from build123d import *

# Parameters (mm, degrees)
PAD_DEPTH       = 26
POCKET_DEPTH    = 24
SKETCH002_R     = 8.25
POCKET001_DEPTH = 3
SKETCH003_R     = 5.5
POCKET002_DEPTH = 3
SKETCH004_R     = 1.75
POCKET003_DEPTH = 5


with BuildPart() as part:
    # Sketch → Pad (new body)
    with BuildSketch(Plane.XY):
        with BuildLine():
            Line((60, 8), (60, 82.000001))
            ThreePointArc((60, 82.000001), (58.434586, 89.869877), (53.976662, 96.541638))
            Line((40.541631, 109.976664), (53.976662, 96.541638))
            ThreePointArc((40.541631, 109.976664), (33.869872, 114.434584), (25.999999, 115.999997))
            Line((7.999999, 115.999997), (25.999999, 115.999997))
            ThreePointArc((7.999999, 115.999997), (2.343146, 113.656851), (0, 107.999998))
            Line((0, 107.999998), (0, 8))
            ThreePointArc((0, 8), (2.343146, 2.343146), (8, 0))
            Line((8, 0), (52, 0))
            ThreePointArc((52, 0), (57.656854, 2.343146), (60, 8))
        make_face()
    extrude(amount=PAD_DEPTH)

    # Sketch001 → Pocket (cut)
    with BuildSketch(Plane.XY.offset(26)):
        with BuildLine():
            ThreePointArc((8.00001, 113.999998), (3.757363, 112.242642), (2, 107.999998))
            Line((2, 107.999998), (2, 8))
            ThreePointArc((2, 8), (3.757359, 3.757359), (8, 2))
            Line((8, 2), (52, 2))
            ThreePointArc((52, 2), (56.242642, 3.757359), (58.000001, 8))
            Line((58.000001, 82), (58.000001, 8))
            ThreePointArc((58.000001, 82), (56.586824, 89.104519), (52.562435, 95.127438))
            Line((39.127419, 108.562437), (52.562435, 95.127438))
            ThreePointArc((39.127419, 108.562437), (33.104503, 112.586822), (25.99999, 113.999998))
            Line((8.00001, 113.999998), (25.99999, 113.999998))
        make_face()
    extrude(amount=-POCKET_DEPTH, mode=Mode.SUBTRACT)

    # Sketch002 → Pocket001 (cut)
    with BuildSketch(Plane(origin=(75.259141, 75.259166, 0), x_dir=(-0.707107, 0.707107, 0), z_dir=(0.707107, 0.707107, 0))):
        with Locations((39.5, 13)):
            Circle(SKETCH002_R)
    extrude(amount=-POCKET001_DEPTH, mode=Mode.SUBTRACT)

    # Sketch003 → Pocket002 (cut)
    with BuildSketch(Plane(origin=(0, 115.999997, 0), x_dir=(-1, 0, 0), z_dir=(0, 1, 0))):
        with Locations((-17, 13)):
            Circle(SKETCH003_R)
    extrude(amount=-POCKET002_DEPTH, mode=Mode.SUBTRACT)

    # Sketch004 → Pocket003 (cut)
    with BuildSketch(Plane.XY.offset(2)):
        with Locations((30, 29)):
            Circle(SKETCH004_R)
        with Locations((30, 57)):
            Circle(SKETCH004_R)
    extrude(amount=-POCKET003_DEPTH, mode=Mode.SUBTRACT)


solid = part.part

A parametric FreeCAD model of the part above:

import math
import FreeCAD as App
import Part
import Sketcher

V = App.Vector

doc = App.newDocument("Part")
body = doc.addObject("PartDesign::Body", "Body")

sketch1 = body.newObject("Sketcher::SketchObject", "Sketch")
sketch1.AttachmentSupport = (doc.getObject("XY_Plane"), [""])
sketch1.MapMode = "FlatFace"
sketch1.addGeometry([
    Part.LineSegment(V(60, 8, 0), V(60, 82.000001, 0)),
    Part.ArcOfCircle(Part.Circle(V(39.435011, 82.000003, 0), V(0, 0, 1), 20.564989), math.radians(-0.000005), math.radians(44.999969)),
    Part.LineSegment(V(53.976662, 96.541638, 0), V(40.541631, 109.976664, 0)),
    Part.ArcOfCircle(Part.Circle(V(26, 95.435005, 0), V(0, 0, 1), 20.564992), math.radians(45.000054), math.radians(90.000001)),
    Part.LineSegment(V(25.999999, 115.999997, 0), V(7.999999, 115.999997, 0)),
    Part.ArcOfCircle(Part.Circle(V(8.000001, 107.999996, 0), V(0, 0, 1), 8.000001), math.radians(90.000013), math.radians(179.999987)),
    Part.LineSegment(V(0, 107.999998, 0), V(0, 8, 0)),
    Part.ArcOfCircle(Part.Circle(V(8.000001, 8.000001, 0), V(0, 0, 1), 8.000001), math.radians(-179.999994), math.radians(-90.000006)),
    Part.LineSegment(V(8, 0, 0), V(52, 0, 0)),
    Part.ArcOfCircle(Part.Circle(V(51.999999, 8.000001, 0), V(0, 0, 1), 8.000001), math.radians(-89.999994), math.radians(-0.000006)),
], False)
sketch1.addConstraint([
    Sketcher.Constraint("Coincident", 0, 2, 1, 1),
    Sketcher.Constraint("Coincident", 1, 2, 2, 1),
    Sketcher.Constraint("Coincident", 2, 2, 3, 1),
    Sketcher.Constraint("Coincident", 3, 2, 4, 1),
    Sketcher.Constraint("Coincident", 4, 2, 5, 1),
    Sketcher.Constraint("Coincident", 5, 2, 6, 1),
    Sketcher.Constraint("Coincident", 6, 2, 7, 1),
    Sketcher.Constraint("Coincident", 7, 2, 8, 1),
    Sketcher.Constraint("Coincident", 8, 2, 9, 1),
    Sketcher.Constraint("Coincident", 9, 2, 0, 1),
    Sketcher.Constraint("Vertical", 0),
    Sketcher.Constraint("Horizontal", 4),
    Sketcher.Constraint("Vertical", 6),
    Sketcher.Constraint("Horizontal", 8),
    Sketcher.Constraint("PointOnObject", 5, 2, -2),
    Sketcher.Constraint("PointOnObject", 7, 2, -1),
    Sketcher.Constraint("Radius", 5, 8.000001),
    Sketcher.Constraint("Radius", 7, 8.000001),
    Sketcher.Constraint("Radius", 9, 8.000001),
    Sketcher.Constraint("DistanceX", 4, 2, 4, 1, 18.0),
    Sketcher.Constraint("DistanceX", 8, 1, 8, 2, 44.0),
    Sketcher.Constraint("DistanceY", 0, 1, 0, 2, 74.000001),
    Sketcher.Constraint("DistanceY", 6, 2, 6, 1, 99.999998),
    Sketcher.Constraint("Distance", 2, 19.0),
    Sketcher.Constraint("DistanceX", -1, 1, 3, 3, 26.0),
    Sketcher.Constraint("DistanceX", -1, 1, 9, 3, 51.999999),
    Sketcher.Constraint("DistanceY", -1, 1, 0, 2, 82.000001),
    Sketcher.Constraint("DistanceX", -1, 1, 3, 2, 25.999999),
    Sketcher.Constraint("DistanceY", -1, 1, 5, 2, 107.999998),
    Sketcher.Constraint("DistanceX", -1, 1, 7, 2, 8.0),
    Sketcher.Constraint("DistanceY", 7, 3, 1, 3, 74.000002),
    Sketcher.Constraint("DistanceY", 5, 2, 4, 2, 7.999999),
    Sketcher.Constraint("Radius", 1, 20.564989),
    Sketcher.Constraint("Radius", 3, 20.564992),
    Sketcher.Constraint("DistanceY", -1, 1, 1, 2, 96.541638),
])
pad1 = body.newObject("PartDesign::Pad", "Pad")
pad1.Profile = sketch1
pad1.Length = 26

sketch2 = body.newObject("Sketcher::SketchObject", "Sketch001")
sketch2.AttachmentSupport = (doc.getObject("XY_Plane"), [""])
sketch2.MapMode = "FlatFace"
sketch2.AttachmentOffset = App.Placement(V(0, 0, 26), App.Rotation())
sketch2.addGeometry([
    Part.ArcOfCircle(Part.Circle(V(8.000001, 107.999997, 0), V(0, 0, 1), 6.000001), math.radians(89.999911), math.radians(179.999994)),
    Part.LineSegment(V(2, 107.999998, 0), V(2, 8, 0)),
    Part.ArcOfCircle(Part.Circle(V(7.999999, 7.999999, 0), V(0, 0, 1), 5.999999), math.radians(179.99999), math.radians(270.00001)),
    Part.LineSegment(V(8, 2, 0), V(52, 2, 0)),
    Part.ArcOfCircle(Part.Circle(V(52.000002, 7.999999, 0), V(0, 0, 1), 5.999999), math.radians(-90.00002), math.radians(0.00001)),
    Part.LineSegment(V(58.000001, 8, 0), V(58.000001, 82, 0)),
    Part.ArcOfCircle(Part.Circle(V(39.435013, 82.000002, 0), V(0, 0, 1), 18.564988), math.radians(-0.000007), math.radians(45.00003)),
    Part.LineSegment(V(52.562435, 95.127438, 0), V(39.127419, 108.562437, 0)),
    Part.ArcOfCircle(Part.Circle(V(25.999989, 95.435012, 0), V(0, 0, 1), 18.564986), math.radians(44.999989), math.radians(89.999997)),
    Part.LineSegment(V(25.99999, 113.999998, 0), V(8.00001, 113.999998, 0)),
], False)
sketch2.addConstraint([
    Sketcher.Constraint("Coincident", 0, 2, 1, 1),
    Sketcher.Constraint("Coincident", 1, 2, 2, 1),
    Sketcher.Constraint("Coincident", 2, 2, 3, 1),
    Sketcher.Constraint("Coincident", 3, 2, 4, 1),
    Sketcher.Constraint("Coincident", 4, 2, 5, 1),
    Sketcher.Constraint("Coincident", 5, 2, 6, 1),
    Sketcher.Constraint("Coincident", 6, 2, 7, 1),
    Sketcher.Constraint("Coincident", 7, 2, 8, 1),
    Sketcher.Constraint("Coincident", 8, 2, 9, 1),
    Sketcher.Constraint("Coincident", 9, 2, 0, 1),
    Sketcher.Constraint("Vertical", 1),
    Sketcher.Constraint("Horizontal", 3),
    Sketcher.Constraint("Vertical", 5),
    Sketcher.Constraint("Horizontal", 9),
    Sketcher.Constraint("Radius", 0, 6.000001),
    Sketcher.Constraint("Radius", 2, 5.999999),
    Sketcher.Constraint("Radius", 4, 5.999999),
    Sketcher.Constraint("DistanceX", 3, 1, 3, 2, 44.0),
    Sketcher.Constraint("DistanceY", 1, 2, 1, 1, 99.999998),
    Sketcher.Constraint("DistanceY", 5, 1, 5, 2, 74.0),
    Sketcher.Constraint("DistanceX", -1, 1, 0, 3, 8.000001),
    Sketcher.Constraint("DistanceY", -1, 1, 2, 3, 7.999999),
    Sketcher.Constraint("DistanceY", -1, 1, 0, 2, 107.999998),
    Sketcher.Constraint("DistanceX", -1, 1, 2, 2, 8.0),
    Sketcher.Constraint("DistanceX", -1, 1, 4, 2, 58.000001),
    Sketcher.Constraint("DistanceY", -1, 1, 4, 2, 8.0),
    Sketcher.Constraint("DistanceY", -1, 1, 9, 2, 113.999998),
    Sketcher.Constraint("Radius", 6, 18.564988),
    Sketcher.Constraint("Radius", 8, 18.564986),
    Sketcher.Constraint("DistanceY", 6, 2, 7, 2, 13.434999),
    Sketcher.Constraint("DistanceX", 9, 2, 9, 1, 17.99998),
    Sketcher.Constraint("Distance", 7, 18.99997),
    Sketcher.Constraint("DistanceX", -1, 1, 8, 3, 25.999989),
    Sketcher.Constraint("DistanceX", -1, 1, 7, 2, 39.127419),
    Sketcher.Constraint("DistanceX", -1, 1, 8, 2, 25.99999),
])
pocket1 = body.newObject("PartDesign::Pocket", "Pocket")
pocket1.Profile = sketch2
pocket1.Length = 24

sketch3 = body.newObject("Sketcher::SketchObject", "Sketch002")
sketch3.Placement = App.Placement(V(75.259141, 75.259166, 0), App.Rotation(V(-0.707106781, 0.707106781, 0), V(0, 0, 0.999999999), V(0.707106781, 0.707106781, 0), "ZXY"))
sketch3.addGeometry(Part.Circle(V(39.5, 13, 0), V(0, 0, 1), 8.25), False)
sketch3.addConstraint([
    Sketcher.Constraint("Diameter", 0, 16.5),
    Sketcher.Constraint("DistanceY", -1, 1, 0, 3, 13.0),
    Sketcher.Constraint("DistanceX", -1, 1, 0, 3, 39.5),
])
pocket2 = body.newObject("PartDesign::Pocket", "Pocket001")
pocket2.Profile = sketch3
pocket2.Length = 3

sketch4 = body.newObject("Sketcher::SketchObject", "Sketch003")
sketch4.AttachmentSupport = (doc.getObject("XZ_Plane"), [""])
sketch4.MapMode = "FlatFace"
sketch4.AttachmentOffset = App.Placement(V(0, 0, -115.999997), App.Rotation())
sketch4.addGeometry(Part.Circle(V(17, 13, 0), V(0, 0, 1), 5.5), False)
sketch4.addConstraint([
    Sketcher.Constraint("Diameter", 0, 11.0),
    Sketcher.Constraint("DistanceX", -1, 1, 0, 3, 17.0),
    Sketcher.Constraint("DistanceY", -1, 1, 0, 3, 13.0),
])
pocket3 = body.newObject("PartDesign::Pocket", "Pocket002")
pocket3.Profile = sketch4
pocket3.Length = 3
pocket3.Reversed = True

sketch5 = body.newObject("Sketcher::SketchObject", "Sketch004")
sketch5.AttachmentSupport = (doc.getObject("XY_Plane"), [""])
sketch5.MapMode = "FlatFace"
sketch5.AttachmentOffset = App.Placement(V(0, 0, 2), App.Rotation())
sketch5.addGeometry([
    Part.Circle(V(30, 29, 0), V(0, 0, 1), 1.75),
    Part.Circle(V(30, 57, 0), V(0, 0, 1), 1.75),
], False)
sketch5.addConstraint([
    Sketcher.Constraint("Equal", 0, 1),
    Sketcher.Constraint("Vertical", 0, 3, 1, 3),
    Sketcher.Constraint("Diameter", 0, 3.5),
    Sketcher.Constraint("DistanceX", -1, 1, 0, 3, 30.0),
    Sketcher.Constraint("DistanceY", -1, 1, 0, 3, 29.0),
    Sketcher.Constraint("DistanceY", -1, 1, 1, 3, 57.0),
])
pocket4 = body.newObject("PartDesign::Pocket", "Pocket003")
pocket4.Profile = sketch5
pocket4.Length = 5

doc.recompute()
